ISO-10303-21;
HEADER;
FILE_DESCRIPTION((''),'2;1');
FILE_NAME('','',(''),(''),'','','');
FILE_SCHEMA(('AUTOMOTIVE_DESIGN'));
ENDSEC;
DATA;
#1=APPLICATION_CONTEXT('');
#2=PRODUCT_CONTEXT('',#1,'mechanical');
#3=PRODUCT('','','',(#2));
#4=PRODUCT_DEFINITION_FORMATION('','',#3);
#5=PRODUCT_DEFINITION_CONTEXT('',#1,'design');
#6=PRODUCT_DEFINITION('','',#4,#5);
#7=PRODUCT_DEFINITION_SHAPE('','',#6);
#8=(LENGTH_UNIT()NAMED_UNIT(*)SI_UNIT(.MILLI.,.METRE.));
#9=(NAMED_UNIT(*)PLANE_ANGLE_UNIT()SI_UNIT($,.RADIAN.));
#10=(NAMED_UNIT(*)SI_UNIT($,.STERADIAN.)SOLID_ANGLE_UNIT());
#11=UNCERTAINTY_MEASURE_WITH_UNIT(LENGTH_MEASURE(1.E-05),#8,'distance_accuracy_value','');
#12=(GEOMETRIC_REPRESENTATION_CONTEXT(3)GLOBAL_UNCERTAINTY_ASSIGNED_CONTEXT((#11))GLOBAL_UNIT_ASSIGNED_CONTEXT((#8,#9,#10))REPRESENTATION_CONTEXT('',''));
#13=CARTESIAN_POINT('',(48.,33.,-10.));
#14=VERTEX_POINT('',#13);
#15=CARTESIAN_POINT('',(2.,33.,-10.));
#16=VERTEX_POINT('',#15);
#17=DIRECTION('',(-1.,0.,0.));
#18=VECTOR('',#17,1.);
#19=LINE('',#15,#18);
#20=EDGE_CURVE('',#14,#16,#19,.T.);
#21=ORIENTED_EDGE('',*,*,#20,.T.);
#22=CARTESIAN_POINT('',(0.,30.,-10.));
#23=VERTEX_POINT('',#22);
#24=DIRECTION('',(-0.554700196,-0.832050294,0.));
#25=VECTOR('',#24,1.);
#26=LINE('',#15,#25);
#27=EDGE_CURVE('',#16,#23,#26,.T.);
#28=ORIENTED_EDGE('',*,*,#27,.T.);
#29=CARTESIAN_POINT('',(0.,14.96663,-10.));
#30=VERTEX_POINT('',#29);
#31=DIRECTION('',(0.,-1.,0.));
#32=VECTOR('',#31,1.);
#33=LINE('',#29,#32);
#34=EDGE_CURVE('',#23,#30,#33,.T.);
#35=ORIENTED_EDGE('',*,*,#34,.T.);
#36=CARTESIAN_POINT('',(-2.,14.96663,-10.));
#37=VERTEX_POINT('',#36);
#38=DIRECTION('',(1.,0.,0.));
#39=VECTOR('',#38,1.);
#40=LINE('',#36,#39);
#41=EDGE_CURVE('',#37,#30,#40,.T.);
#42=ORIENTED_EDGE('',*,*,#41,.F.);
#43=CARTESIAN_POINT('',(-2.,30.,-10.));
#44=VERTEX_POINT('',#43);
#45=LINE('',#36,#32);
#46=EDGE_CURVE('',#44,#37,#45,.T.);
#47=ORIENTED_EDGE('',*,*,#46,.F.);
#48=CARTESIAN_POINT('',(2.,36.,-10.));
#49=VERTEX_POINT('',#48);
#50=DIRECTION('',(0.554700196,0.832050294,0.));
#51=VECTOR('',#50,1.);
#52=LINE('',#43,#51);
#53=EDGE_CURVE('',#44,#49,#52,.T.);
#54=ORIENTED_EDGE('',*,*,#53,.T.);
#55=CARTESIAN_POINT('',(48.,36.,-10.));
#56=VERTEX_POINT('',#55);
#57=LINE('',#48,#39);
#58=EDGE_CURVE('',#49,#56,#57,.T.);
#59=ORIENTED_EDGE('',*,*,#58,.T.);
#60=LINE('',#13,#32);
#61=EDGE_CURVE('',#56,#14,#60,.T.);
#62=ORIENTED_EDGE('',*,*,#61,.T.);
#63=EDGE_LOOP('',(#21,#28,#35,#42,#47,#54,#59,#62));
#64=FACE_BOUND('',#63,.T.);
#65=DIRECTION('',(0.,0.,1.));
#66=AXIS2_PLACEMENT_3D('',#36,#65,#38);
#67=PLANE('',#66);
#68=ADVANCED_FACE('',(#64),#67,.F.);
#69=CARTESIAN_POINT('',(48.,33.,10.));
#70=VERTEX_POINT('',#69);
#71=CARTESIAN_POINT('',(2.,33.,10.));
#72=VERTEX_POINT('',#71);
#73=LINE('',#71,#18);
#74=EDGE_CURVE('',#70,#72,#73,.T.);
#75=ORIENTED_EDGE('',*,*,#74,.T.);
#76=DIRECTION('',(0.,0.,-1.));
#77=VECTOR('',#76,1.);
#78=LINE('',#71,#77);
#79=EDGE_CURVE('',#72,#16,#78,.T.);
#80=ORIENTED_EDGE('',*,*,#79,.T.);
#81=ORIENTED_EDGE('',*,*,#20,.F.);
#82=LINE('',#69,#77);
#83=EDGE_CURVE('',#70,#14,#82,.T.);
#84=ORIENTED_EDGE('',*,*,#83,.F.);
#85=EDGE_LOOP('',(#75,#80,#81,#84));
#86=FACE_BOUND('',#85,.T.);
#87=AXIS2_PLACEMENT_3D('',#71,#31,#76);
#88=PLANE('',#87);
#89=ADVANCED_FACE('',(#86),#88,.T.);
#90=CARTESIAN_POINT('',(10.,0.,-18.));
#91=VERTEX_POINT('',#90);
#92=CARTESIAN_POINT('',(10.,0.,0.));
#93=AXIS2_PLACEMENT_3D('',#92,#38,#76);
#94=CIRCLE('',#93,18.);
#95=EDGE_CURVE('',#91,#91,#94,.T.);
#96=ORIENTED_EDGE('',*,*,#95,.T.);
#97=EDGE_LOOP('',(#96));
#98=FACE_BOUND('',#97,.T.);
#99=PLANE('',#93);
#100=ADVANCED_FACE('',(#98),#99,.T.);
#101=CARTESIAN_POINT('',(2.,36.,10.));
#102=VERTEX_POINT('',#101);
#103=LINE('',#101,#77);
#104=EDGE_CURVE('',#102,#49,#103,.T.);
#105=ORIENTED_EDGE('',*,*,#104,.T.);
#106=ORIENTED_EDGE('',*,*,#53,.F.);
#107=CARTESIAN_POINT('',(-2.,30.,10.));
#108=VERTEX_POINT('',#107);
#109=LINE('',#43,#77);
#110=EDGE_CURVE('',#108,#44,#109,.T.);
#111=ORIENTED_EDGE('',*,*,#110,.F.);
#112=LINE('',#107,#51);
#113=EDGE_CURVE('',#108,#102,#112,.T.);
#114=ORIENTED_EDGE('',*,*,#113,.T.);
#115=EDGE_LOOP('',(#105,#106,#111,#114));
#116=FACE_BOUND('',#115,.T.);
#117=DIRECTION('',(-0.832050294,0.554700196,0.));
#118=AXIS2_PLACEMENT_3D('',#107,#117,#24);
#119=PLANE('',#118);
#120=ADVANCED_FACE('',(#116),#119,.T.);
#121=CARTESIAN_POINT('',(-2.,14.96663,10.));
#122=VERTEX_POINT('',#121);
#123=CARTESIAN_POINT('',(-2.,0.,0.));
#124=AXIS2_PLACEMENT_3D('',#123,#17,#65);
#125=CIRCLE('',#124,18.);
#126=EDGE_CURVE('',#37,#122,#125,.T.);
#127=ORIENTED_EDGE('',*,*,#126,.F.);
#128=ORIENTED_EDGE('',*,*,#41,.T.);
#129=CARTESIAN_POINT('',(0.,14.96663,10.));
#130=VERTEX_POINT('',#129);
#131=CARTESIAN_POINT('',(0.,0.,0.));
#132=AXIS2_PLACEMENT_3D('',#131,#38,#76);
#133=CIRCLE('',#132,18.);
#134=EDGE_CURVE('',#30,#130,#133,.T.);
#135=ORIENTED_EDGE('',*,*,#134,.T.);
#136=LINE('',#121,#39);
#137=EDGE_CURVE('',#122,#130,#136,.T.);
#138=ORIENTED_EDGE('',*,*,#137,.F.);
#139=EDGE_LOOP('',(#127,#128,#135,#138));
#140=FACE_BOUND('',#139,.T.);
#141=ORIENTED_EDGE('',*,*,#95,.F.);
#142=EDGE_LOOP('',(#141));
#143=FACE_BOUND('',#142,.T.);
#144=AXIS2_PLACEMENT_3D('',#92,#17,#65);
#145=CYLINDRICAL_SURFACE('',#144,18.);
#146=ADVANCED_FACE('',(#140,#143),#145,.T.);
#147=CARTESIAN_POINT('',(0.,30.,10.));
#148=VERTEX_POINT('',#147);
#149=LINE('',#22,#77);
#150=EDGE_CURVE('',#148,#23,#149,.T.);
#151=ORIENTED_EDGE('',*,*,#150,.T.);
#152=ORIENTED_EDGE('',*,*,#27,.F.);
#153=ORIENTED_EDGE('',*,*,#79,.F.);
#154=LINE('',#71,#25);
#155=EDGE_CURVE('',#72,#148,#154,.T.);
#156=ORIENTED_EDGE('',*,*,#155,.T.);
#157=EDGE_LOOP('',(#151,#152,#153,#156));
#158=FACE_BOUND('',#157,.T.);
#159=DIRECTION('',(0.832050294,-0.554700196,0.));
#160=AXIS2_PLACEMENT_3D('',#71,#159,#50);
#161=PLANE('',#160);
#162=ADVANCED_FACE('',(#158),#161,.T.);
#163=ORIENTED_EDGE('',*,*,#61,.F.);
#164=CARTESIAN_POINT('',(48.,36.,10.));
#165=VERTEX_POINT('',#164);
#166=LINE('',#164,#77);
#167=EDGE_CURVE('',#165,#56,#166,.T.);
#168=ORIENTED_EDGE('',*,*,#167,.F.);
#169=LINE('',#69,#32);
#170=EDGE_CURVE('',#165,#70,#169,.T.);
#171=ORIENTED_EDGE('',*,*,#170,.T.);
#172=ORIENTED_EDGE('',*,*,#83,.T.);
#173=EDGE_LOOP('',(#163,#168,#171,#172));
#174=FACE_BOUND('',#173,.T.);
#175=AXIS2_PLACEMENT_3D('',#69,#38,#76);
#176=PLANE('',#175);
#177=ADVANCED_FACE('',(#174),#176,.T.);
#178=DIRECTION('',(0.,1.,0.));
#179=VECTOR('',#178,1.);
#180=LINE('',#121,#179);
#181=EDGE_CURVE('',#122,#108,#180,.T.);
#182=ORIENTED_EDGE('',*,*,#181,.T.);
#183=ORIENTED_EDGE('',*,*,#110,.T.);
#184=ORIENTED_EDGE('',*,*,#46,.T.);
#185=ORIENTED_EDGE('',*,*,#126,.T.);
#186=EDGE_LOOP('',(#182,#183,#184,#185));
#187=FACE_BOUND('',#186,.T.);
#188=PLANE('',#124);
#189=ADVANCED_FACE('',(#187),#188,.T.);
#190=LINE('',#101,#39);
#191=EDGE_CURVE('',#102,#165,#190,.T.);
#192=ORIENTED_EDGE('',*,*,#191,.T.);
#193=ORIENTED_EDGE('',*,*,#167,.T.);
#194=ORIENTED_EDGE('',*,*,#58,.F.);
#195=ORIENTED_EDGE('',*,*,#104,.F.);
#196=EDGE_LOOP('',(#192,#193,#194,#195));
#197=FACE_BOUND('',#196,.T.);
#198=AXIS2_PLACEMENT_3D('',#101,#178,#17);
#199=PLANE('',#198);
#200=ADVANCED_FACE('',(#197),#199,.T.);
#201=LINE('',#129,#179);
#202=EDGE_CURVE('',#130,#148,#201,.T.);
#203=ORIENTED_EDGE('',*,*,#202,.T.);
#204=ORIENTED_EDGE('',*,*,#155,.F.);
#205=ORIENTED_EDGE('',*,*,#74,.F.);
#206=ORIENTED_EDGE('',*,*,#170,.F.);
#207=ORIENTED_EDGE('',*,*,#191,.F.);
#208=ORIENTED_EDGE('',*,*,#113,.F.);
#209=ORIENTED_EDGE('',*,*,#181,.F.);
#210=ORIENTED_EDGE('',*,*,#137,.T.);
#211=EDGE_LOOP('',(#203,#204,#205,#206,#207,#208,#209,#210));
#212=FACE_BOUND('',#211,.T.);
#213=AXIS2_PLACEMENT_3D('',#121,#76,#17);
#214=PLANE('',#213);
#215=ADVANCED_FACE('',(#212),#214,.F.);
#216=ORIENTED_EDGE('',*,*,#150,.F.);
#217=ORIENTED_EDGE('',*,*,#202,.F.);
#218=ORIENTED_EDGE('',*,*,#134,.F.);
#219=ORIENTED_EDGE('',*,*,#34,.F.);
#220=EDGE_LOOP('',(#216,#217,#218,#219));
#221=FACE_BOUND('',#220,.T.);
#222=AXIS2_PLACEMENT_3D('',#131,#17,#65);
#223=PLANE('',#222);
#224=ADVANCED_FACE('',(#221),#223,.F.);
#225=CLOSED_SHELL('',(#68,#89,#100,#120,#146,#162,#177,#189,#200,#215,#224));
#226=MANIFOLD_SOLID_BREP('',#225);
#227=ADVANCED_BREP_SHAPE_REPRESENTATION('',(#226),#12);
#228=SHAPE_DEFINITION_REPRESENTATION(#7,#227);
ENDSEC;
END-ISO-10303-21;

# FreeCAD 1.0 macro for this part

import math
import FreeCAD as App
import Part
import Sketcher
from FreeCAD import Vector


def add_polygon(sketch, points):
    """Adds a closed chain of lines whose ends are joined by coincident constraints."""
    first, n = sketch.GeometryCount, len(points)
    for a, b in zip(points, points[1:] + points[:1]):
        sketch.addGeometry(Part.LineSegment(App.Vector(*a, 0), App.Vector(*b, 0)), False)
    for i in range(n):
        sketch.addConstraint(Sketcher.Constraint("Coincident", first + i, 2, first + (i + 1) % n, 1))

doc = App.newDocument("Part")
body = doc.addObject("PartDesign::Body", "Body")

# Sketch on YZ plane
sketch1 = body.newObject("Sketcher::SketchObject", "Sketch")
sketch1.AttachmentSupport = (doc.getObject("YZ_Plane"), [""])
sketch1.MapMode = "FlatFace"
sketch1.addGeometry(Part.Circle(Vector(0, 0, 0), Vector(0, 0, 1), 18), False)
sketch1.addConstraint(Sketcher.Constraint("Coincident", 0, 3, -1, 1))
sketch1.addConstraint(Sketcher.Constraint("Diameter", 0, 36.0))
pad1 = body.newObject("PartDesign::Pad", "Pad")
pad1.Profile = sketch1
pad1.Length = 10

# Sketch on YZ plane
sketch2 = body.newObject("Sketcher::SketchObject", "Sketch001")
sketch2.AttachmentSupport = (doc.getObject("YZ_Plane"), [""])
sketch2.MapMode = "FlatFace"
sketch2.addGeometry(Part.LineSegment(Vector(30, -10, 0), Vector(15, -10, 0)), False)
sketch2.addGeometry(Part.ArcOfCircle(Part.Circle(Vector(0, 0, 0), Vector(0, 0, 1), 18), math.radians(34), math.radians(326)), False)
sketch2.addGeometry(Part.LineSegment(Vector(15, 10, 0), Vector(30, 10, 0)), False)
sketch2.addGeometry(Part.LineSegment(Vector(30, 10, 0), Vector(30, -10, 0)), False)
sketch2.addConstraint(Sketcher.Constraint("Coincident", 0, 2, 1, 2))
sketch2.addConstraint(Sketcher.Constraint("Coincident", 1, 1, 2, 1))
sketch2.addConstraint(Sketcher.Constraint("Coincident", 2, 2, 3, 1))
sketch2.addConstraint(Sketcher.Constraint("Coincident", 3, 2, 0, 1))
sketch2.addConstraint(Sketcher.Constraint("Horizontal", 0))
sketch2.addConstraint(Sketcher.Constraint("Horizontal", 2))
sketch2.addConstraint(Sketcher.Constraint("Vertical", 3))
sketch2.addConstraint(Sketcher.Constraint("Coincident", 1, 3, -1, 1))
sketch2.addConstraint(Sketcher.Constraint("Vertical", 0, 2, 1, 1))
sketch2.addConstraint(Sketcher.Constraint("Radius", 1, 18.0))
sketch2.addConstraint(Sketcher.Constraint("DistanceY", 3, 2, 3, 1, 20.0))
sketch2.addConstraint(Sketcher.Constraint("DistanceX", -1, 1, 2, 2, 30.0))
pad2 = body.newObject("PartDesign::Pad", "Pad001")
pad2.Profile = sketch2
pad2.Length = 2
pad2.Reversed = True

# Sketch on XY plane
sketch3 = body.newObject("Sketcher::SketchObject", "Sketch002")
sketch3.AttachmentSupport = (doc.getObject("XY_Plane"), [""])
sketch3.MapMode = "FlatFace"
sketch3.AttachmentOffset = App.Placement(Vector(0, 0, -10), App.Rotation())
add_polygon(sketch3, [(2, 36), (48, 36), (48, 33), (2, 33), (0, 30), (0, 15), (-2, 15), (-2, 30)])  # lines 0-7
sketch3.addConstraint(Sketcher.Constraint("Horizontal", 0))
sketch3.addConstraint(Sketcher.Constraint("Vertical", 1))
sketch3.addConstraint(Sketcher.Constraint("Horizontal", 2))
sketch3.addConstraint(Sketcher.Constraint("Vertical", 4))
sketch3.addConstraint(Sketcher.Constraint("Horizontal", 5))
sketch3.addConstraint(Sketcher.Constraint("Vertical", 6))
sketch3.addConstraint(Sketcher.Constraint("PointOnObject", 3, 2, -2))
sketch3.addConstraint(Sketcher.Constraint("Parallel", 3, 7))
sketch3.addConstraint(Sketcher.Constraint("Horizontal", 3, 2, 6, 2))
sketch3.addConstraint(Sketcher.Constraint("Vertical", 2, 2, 7, 2))
sketch3.addConstraint(Sketcher.Constraint("DistanceX", 0, 1, 0, 2, 46.0))
sketch3.addConstraint(Sketcher.Constraint("DistanceX", 5, 2, 5, 1, 2.0))
sketch3.addConstraint(Sketcher.Constraint("DistanceY", 1, 2, 1, 1, 3.0))
sketch3.addConstraint(Sketcher.Constraint("DistanceX", -1, 1, 0, 2, 48.0))
sketch3.addConstraint(Sketcher.Constraint("DistanceY", -1, 1, 0, 2, 36.0))
sketch3.addConstraint(Sketcher.Constraint("DistanceY", 4, 2, 4, 1, 15.03337))
pad3 = body.newObject("PartDesign::Pad", "Pad002")
pad3.Profile = sketch3
pad3.Length = 20

doc.recompute()
